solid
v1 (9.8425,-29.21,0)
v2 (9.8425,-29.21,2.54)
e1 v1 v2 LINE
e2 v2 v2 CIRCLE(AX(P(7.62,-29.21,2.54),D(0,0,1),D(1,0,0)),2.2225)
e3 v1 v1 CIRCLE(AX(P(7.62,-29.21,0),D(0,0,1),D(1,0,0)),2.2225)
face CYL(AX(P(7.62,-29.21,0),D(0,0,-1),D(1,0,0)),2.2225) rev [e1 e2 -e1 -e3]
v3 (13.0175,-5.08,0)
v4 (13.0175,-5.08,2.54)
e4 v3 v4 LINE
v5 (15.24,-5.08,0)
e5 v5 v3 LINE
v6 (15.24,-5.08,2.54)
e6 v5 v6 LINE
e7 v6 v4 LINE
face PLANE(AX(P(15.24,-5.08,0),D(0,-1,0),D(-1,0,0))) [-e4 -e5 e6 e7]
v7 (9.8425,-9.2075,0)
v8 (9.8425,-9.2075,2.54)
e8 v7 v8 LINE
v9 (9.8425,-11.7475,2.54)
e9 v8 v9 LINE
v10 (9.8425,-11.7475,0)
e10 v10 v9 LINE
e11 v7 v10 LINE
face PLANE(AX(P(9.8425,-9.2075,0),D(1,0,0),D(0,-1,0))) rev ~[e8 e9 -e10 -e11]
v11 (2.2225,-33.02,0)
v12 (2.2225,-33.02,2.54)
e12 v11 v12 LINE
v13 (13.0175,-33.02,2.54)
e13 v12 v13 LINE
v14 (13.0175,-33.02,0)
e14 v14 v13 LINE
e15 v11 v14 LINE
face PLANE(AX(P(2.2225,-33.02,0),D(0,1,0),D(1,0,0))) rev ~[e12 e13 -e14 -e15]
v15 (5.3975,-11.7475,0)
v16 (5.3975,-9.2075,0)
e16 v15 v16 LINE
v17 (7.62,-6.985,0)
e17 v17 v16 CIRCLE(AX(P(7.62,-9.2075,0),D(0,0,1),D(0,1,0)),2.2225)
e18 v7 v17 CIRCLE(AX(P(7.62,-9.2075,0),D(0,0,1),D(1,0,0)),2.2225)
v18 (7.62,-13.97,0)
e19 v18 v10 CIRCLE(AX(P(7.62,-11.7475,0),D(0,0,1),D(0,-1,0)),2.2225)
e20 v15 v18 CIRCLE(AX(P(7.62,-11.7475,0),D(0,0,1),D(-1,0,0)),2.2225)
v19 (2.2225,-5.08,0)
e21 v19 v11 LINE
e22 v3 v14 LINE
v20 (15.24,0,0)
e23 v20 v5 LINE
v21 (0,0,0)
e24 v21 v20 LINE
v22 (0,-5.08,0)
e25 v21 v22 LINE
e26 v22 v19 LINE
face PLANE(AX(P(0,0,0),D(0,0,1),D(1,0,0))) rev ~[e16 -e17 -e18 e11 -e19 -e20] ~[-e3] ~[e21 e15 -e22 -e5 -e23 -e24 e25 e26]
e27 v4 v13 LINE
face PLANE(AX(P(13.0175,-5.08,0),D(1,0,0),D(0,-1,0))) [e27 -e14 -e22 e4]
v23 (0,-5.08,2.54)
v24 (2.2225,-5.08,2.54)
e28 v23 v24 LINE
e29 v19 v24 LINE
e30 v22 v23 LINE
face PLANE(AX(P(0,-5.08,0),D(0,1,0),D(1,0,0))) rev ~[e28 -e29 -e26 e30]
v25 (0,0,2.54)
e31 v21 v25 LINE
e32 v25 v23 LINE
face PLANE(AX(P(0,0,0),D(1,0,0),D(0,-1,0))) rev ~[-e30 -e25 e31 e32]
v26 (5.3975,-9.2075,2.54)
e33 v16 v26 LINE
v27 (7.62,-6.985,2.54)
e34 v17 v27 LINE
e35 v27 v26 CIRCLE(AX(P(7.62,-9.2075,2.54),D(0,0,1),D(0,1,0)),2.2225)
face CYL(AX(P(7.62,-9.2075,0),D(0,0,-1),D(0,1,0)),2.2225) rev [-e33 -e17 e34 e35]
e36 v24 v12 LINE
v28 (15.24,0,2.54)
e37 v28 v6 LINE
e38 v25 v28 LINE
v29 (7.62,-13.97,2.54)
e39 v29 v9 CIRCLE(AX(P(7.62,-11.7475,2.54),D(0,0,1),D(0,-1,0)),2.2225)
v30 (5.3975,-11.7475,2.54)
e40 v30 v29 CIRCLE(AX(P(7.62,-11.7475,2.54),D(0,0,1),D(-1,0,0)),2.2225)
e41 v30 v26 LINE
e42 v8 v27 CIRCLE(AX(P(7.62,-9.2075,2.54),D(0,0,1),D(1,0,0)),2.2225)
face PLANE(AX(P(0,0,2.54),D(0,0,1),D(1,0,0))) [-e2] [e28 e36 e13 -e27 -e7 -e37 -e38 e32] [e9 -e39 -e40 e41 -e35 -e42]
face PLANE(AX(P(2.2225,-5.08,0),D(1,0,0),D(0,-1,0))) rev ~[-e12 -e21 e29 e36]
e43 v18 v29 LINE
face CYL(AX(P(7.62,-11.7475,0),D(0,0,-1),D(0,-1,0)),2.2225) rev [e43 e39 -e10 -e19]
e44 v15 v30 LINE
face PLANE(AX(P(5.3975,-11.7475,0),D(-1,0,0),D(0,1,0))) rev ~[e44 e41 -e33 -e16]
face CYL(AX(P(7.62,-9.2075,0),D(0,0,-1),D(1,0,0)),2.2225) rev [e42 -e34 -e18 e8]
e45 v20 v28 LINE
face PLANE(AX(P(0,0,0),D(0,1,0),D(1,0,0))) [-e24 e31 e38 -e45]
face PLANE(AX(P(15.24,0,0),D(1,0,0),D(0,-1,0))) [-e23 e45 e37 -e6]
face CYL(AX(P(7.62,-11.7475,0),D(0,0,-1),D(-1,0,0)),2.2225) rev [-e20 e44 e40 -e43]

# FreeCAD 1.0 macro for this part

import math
import FreeCAD as App
import Part
import Sketcher
from FreeCAD import Vector
Q = App.Units.Quantity

doc = App.newDocument("Part")
body = doc.addObject("PartDesign::Body", "Body")

sketch1 = doc.addObject("Sketcher::SketchObject", "Sketch")
body.addObject(sketch1)
sketch1.AttachmentSupport = (doc.XY_Plane, [""])
sketch1.MapMode = "FlatFace"
sketch1.addGeometry(Part.LineSegment(Vector(15.2, 0, 0), Vector(0, 0, 0)), False)
sketch1.addGeometry(Part.LineSegment(Vector(0, 0, 0), Vector(0, -5.1, 0)), False)
sketch1.addGeometry(Part.LineSegment(Vector(0, -5.1, 0), Vector(2.2, -5.1, 0)), False)
sketch1.addGeometry(Part.LineSegment(Vector(2.2, -5.1, 0), Vector(2.2, -33, 0)), False)
sketch1.addGeometry(Part.LineSegment(Vector(2.2, -33, 0), Vector(13, -33, 0)), False)
sketch1.addGeometry(Part.LineSegment(Vector(13, -33, 0), Vector(13, -5.1, 0)), False)
sketch1.addGeometry(Part.LineSegment(Vector(13, -5.1, 0), Vector(15.2, -5.1, 0)), False)
sketch1.addGeometry(Part.LineSegment(Vector(15.2, -5.1, 0), Vector(15.2, 0, 0)), False)
sketch1.addGeometry(Part.Circle(Vector(7.6, -29.2, 0), Vector(0, 0, 1), 2.2), False)
sketch1.addGeometry(Part.ArcOfCircle(Part.Circle(Vector(7.6, -9.2, 0), Vector(0, 0, 1), 2.2), math.radians(0), math.radians(180)), False)
sketch1.addGeometry(Part.LineSegment(Vector(9.8, -9.2, 0), Vector(9.8, -11.7, 0)), False)
sketch1.addGeometry(Part.ArcOfCircle(Part.Circle(Vector(7.6, -11.7, 0), Vector(0, 0, 1), 2.2), math.radians(180), math.radians(360)), False)
sketch1.addGeometry(Part.LineSegment(Vector(5.4, -11.7, 0), Vector(5.4, -9.2, 0)), False)
sketch1.addConstraint(Sketcher.Constraint("Coincident", 0, 2, 1, 1))
sketch1.addConstraint(Sketcher.Constraint("Coincident", 1, 2, 2, 1))
sketch1.addConstraint(Sketcher.Constraint("Coincident", 2, 2, 3, 1))
sketch1.addConstraint(Sketcher.Constraint("Coincident", 3, 2, 4, 1))
sketch1.addConstraint(Sketcher.Constraint("Coincident", 4, 2, 5, 1))
sketch1.addConstraint(Sketcher.Constraint("Coincident", 5, 2, 6, 1))
sketch1.addConstraint(Sketcher.Constraint("Coincident", 6, 2, 7, 1))
sketch1.addConstraint(Sketcher.Constraint("Coincident", 7, 2, 0, 1))
sketch1.addConstraint(Sketcher.Constraint("Tangent", 9, 1, 10, 1))
sketch1.addConstraint(Sketcher.Constraint("Tangent", 10, 2, 11, 2))
sketch1.addConstraint(Sketcher.Constraint("Tangent", 11, 1, 12, 1))
sketch1.addConstraint(Sketcher.Constraint("Tangent", 12, 2, 9, 2))
sketch1.addConstraint(Sketcher.Constraint("Horizontal", 0))
sketch1.addConstraint(Sketcher.Constraint("Vertical", 1))
sketch1.addConstraint(Sketcher.Constraint("Horizontal", 2))
sketch1.addConstraint(Sketcher.Constraint("Vertical", 3))
sketch1.addConstraint(Sketcher.Constraint("Horizontal", 4))
sketch1.addConstraint(Sketcher.Constraint("Vertical", 5))
sketch1.addConstraint(Sketcher.Constraint("Horizontal", 6))
sketch1.addConstraint(Sketcher.Constraint("Vertical", 7))
sketch1.addConstraint(Sketcher.Constraint("Vertical", 10))
sketch1.addConstraint(Sketcher.Constraint("Vertical", 12))
sketch1.addConstraint(Sketcher.Constraint("Coincident", 0, 2, -1, 1))
sketch1.addConstraint(Sketcher.Constraint("Equal", 8, 9))
sketch1.addConstraint(Sketcher.Constraint("Horizontal", 2, 2, 5, 2))
sketch1.addConstraint(Sketcher.Constraint("Vertical", 8, 3, 9, 3))
sketch1.addConstraint(Sketcher.Constraint("Equal", 2, 6))
sketch1.addConstraint(Sketcher.Constraint("Diameter", 8, Q("0.175 in")))
sketch1.addConstraint(Sketcher.Constraint("DistanceX", 0, 2, 0, 1, Q("0.6 in")))
sketch1.addConstraint(Sketcher.Constraint("DistanceY", 1, 2, 1, 1, Q("0.2 in")))
sketch1.addConstraint(Sketcher.Constraint("DistanceY", 3, 2, 3, 1, Q("1.1 in")))
sketch1.addConstraint(Sketcher.Constraint("DistanceY", 3, 2, 8, 3, Q("0.15 in")))
sketch1.addConstraint(Sketcher.Constraint("DistanceX", 2, 1, 2, 2, Q("0.0875 in")))
sketch1.addConstraint(Sketcher.Constraint("DistanceY", 10, 2, 10, 1, Q("0.1 in")))
sketch1.addConstraint(Sketcher.Constraint("DistanceX", -1, 1, 8, 3, Q("0.3 in")))
sketch1.addConstraint(Sketcher.Constraint("DistanceY", 8, 3, 11, 3, Q("0.6875 in")))
pad1 = doc.addObject("PartDesign::Pad", "Pad")
body.addObject(pad1)
pad1.Profile = sketch1
pad1.Length = Q("0.1 in")

doc.recompute()
